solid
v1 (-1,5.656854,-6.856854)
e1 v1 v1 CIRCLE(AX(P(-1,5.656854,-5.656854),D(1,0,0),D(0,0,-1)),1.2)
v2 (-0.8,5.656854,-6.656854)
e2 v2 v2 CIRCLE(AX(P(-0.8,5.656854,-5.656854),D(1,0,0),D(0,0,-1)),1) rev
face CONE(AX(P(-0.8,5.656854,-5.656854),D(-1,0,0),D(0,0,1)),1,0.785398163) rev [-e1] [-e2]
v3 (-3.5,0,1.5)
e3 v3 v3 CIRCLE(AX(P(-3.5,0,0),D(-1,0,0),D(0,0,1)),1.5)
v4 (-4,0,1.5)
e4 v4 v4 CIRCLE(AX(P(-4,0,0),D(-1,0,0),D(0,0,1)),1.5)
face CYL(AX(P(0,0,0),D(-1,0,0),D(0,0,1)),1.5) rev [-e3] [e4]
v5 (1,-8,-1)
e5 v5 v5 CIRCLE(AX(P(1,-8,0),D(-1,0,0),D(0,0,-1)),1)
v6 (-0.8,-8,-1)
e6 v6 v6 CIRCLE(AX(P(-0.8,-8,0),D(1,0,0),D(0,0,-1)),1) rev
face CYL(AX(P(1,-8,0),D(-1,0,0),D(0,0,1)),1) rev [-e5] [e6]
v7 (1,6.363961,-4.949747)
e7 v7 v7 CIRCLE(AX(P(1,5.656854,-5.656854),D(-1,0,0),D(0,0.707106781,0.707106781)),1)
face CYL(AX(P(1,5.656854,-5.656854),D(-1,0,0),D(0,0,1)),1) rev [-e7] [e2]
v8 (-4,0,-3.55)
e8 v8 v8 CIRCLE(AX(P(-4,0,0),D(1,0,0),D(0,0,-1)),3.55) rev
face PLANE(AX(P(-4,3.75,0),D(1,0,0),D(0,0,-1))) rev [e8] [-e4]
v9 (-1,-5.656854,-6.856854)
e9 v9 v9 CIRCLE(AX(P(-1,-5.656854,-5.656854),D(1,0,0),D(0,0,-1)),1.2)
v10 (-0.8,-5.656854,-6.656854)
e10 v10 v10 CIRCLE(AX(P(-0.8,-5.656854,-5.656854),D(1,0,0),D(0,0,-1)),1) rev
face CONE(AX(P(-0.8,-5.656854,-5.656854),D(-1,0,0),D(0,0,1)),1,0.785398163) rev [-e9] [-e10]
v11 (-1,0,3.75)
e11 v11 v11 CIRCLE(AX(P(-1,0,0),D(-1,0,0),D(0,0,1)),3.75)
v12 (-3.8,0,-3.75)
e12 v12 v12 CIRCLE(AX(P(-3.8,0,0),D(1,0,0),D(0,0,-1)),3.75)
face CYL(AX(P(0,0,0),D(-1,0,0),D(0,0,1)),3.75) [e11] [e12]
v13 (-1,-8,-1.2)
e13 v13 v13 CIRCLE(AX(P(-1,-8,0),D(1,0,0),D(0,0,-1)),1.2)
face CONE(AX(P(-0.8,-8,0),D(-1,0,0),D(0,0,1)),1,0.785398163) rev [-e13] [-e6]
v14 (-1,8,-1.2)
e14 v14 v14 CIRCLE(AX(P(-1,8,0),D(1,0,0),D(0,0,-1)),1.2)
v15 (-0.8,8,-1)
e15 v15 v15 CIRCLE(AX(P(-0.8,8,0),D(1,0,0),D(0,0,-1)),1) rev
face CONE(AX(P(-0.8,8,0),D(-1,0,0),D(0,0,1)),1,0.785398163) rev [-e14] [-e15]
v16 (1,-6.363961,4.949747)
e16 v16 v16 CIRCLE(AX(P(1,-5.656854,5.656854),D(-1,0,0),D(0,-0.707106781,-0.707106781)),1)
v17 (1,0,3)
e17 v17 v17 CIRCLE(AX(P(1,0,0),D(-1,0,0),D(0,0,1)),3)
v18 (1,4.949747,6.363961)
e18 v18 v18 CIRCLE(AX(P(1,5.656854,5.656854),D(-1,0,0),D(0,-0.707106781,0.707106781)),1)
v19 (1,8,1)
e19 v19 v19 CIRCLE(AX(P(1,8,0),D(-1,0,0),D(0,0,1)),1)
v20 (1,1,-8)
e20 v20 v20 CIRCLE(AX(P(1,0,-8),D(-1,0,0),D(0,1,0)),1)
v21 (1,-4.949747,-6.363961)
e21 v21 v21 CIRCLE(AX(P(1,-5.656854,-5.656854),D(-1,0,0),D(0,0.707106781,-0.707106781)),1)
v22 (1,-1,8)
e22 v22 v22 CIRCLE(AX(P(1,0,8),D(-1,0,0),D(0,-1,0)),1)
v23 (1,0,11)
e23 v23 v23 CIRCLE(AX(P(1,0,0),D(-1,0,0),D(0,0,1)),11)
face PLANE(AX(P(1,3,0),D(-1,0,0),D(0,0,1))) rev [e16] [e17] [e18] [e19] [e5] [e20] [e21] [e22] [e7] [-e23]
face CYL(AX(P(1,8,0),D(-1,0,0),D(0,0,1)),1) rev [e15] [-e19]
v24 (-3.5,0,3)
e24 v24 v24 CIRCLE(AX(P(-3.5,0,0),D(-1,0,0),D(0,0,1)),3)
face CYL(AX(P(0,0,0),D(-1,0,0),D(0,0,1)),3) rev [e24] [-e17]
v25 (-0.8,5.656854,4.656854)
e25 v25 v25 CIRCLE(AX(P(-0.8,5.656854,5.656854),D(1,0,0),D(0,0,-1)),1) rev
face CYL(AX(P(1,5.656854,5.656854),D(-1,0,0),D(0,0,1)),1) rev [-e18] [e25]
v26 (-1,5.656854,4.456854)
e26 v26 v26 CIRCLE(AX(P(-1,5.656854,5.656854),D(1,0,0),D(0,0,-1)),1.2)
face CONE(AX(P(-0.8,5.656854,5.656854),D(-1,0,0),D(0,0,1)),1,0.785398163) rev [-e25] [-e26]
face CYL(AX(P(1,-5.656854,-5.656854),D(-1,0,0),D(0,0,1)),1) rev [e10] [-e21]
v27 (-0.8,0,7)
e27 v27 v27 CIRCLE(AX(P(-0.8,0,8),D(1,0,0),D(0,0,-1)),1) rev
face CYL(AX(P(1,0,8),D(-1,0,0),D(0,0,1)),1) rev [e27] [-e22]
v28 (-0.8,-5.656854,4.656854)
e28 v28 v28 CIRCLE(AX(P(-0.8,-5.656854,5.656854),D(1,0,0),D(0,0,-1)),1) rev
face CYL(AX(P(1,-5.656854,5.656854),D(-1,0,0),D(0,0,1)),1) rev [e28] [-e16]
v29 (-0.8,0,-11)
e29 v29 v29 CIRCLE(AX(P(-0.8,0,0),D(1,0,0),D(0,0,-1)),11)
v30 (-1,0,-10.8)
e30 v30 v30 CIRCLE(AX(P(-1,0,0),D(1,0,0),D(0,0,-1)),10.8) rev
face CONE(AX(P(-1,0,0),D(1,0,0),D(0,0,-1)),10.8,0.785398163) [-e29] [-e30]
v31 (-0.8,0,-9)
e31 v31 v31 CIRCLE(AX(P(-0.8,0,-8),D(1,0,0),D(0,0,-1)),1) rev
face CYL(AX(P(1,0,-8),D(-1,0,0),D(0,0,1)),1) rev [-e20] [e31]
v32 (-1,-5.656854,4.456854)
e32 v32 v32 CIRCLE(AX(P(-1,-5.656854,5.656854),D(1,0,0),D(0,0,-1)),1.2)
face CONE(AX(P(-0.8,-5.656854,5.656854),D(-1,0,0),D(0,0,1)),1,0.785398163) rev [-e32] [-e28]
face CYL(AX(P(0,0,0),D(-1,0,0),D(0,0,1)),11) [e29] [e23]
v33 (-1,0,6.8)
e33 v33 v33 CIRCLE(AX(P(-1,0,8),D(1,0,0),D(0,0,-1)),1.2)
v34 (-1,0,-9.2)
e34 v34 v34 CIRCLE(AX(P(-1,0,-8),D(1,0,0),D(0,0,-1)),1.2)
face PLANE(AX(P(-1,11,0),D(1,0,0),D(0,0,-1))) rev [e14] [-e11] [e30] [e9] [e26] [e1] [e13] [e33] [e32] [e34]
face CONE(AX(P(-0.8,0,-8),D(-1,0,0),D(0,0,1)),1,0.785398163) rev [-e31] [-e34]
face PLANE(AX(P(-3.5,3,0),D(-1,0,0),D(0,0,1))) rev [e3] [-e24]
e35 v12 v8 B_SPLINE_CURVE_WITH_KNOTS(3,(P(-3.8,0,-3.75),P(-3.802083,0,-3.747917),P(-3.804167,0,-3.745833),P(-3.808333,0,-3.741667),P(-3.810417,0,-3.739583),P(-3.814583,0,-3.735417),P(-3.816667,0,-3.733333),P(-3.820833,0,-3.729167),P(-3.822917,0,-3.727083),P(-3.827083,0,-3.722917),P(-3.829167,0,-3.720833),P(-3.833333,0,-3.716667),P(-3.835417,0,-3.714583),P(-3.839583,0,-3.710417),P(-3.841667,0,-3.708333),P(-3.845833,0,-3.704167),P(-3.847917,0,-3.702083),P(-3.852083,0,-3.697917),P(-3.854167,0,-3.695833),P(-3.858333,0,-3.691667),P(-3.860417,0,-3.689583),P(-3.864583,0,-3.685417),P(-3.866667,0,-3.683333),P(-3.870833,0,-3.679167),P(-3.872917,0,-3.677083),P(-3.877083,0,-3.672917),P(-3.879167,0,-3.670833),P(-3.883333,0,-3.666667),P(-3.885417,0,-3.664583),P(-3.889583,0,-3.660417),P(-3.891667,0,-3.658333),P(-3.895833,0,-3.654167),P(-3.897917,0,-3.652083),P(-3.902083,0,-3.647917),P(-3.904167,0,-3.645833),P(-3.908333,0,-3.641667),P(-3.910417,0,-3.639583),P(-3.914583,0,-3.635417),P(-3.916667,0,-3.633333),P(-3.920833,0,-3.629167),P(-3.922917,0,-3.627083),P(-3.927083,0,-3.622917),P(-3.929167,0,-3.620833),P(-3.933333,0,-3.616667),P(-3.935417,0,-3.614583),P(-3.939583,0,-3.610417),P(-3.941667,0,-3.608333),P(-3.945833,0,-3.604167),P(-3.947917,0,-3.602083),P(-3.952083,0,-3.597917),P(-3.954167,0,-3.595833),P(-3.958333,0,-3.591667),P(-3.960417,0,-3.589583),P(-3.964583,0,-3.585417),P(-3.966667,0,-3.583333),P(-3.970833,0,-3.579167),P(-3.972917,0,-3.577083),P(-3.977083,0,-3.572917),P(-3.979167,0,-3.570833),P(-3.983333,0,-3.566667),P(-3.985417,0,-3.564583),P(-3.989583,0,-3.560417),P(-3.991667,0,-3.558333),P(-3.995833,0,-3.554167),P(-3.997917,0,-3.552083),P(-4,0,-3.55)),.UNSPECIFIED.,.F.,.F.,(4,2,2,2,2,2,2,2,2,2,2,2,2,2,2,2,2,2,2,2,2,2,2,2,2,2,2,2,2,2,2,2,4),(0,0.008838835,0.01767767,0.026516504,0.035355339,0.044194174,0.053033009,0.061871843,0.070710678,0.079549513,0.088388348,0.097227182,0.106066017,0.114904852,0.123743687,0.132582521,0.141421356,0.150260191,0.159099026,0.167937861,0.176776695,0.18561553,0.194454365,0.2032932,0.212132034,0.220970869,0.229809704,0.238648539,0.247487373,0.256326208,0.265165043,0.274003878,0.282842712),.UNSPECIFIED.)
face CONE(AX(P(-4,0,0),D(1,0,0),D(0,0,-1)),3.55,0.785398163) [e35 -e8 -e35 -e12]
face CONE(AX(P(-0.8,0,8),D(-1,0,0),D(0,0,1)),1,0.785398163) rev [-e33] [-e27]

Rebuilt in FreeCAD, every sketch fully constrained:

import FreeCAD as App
import Part
import Sketcher
from FreeCAD import Vector
Q = App.Units.Quantity


def edges_at(feature, points):
    """Names of the edges that pass closest to the given points."""
    edges = feature.Shape.Edges
    near = lambda p: min(range(len(edges)), key=lambda i: edges[i].distToShape(Part.Vertex(*p))[0])
    return sorted({f"Edge{near(p) + 1}" for p in points})


def add_polygon(sketch, points):
    """Adds a closed chain of lines whose ends are joined by coincident constraints."""
    first, n = sketch.GeometryCount, len(points)
    for a, b in zip(points, points[1:] + points[:1]):
        sketch.addGeometry(Part.LineSegment(App.Vector(*a, 0), App.Vector(*b, 0)), False)
    for i in range(n):
        sketch.addConstraint(Sketcher.Constraint("Coincident", first + i, 2, first + (i + 1) % n, 1))

doc = App.newDocument("Part")
body = doc.addObject("PartDesign::Body", "Body")

# Sketch on XY plane
sketch1 = doc.addObject("Sketcher::SketchObject", "Sketch")
body.addObject(sketch1)
sketch1.AttachmentSupport = (doc.XY_Plane, [""])
sketch1.MapMode = "FlatFace"
add_polygon(sketch1, [(1, 11), (-1, 11), (-1, 3.8), (-4, 3.8), (-4, 1.5), (-3.5, 1.5), (-3.5, 3), (1, 3)])  # lines 0-7
sketch1.addConstraint(Sketcher.Constraint("Horizontal", 0))
sketch1.addConstraint(Sketcher.Constraint("Vertical", 1))
sketch1.addConstraint(Sketcher.Constraint("Horizontal", 2))
sketch1.addConstraint(Sketcher.Constraint("Vertical", 3))
sketch1.addConstraint(Sketcher.Constraint("Horizontal", 4))
sketch1.addConstraint(Sketcher.Constraint("Vertical", 5))
sketch1.addConstraint(Sketcher.Constraint("Horizontal", 6))
sketch1.addConstraint(Sketcher.Constraint("Vertical", 7))
sketch1.addConstraint(Sketcher.Constraint("DistanceX", 0, 2, 0, 1, Q("2 mm")))
sketch1.addConstraint(Sketcher.Constraint("DistanceX", 2, 2, 2, 1, Q("3 mm")))
sketch1.addConstraint(Sketcher.Constraint("DistanceY", 7, 1, 7, 2, Q("8 mm")))
sketch1.addConstraint(Sketcher.Constraint("DistanceX", 4, 1, 4, 2, Q("0.5 mm")))
sketch1.addConstraint(Sketcher.Constraint("DistanceY", 5, 1, 5, 2, Q("1.5 mm")))
sketch1.addConstraint(Sketcher.Constraint("DistanceX", 0, 2, -1, 1, Q("1 mm")))
sketch1.addConstraint(Sketcher.Constraint("DistanceY", -1, 1, 0, 2, Q("11 mm")))
sketch1.addConstraint(Sketcher.Constraint("DistanceY", 1, 2, 1, 1, Q("7.25 mm")))
revolution = doc.addObject("PartDesign::Revolution", "Revolution")
body.addObject(revolution)
revolution.Profile = sketch1
revolution.ReferenceAxis = (sketch1, ["H_Axis"])
revolution.Angle = 360

# Sketch on YZ plane
sketch2 = doc.addObject("Sketcher::SketchObject", "Sketch001")
body.addObject(sketch2)
sketch2.AttachmentSupport = (doc.YZ_Plane, [""])
sketch2.MapMode = "FlatFace"
sketch2.AttachmentOffset = App.Placement(Vector(0, 0, -1), App.Rotation())
sketch2.addGeometry(Part.Circle(Vector(8, 0, 0), Vector(0, 0, 1), 1), False)
sketch2.addConstraint(Sketcher.Constraint("PointOnObject", 0, 3, -1))
sketch2.addConstraint(Sketcher.Constraint("Diameter", 0, Q("2 mm")))
sketch2.addConstraint(Sketcher.Constraint("DistanceX", -1, 1, 0, 3, Q("8 mm")))
pocket1 = doc.addObject("PartDesign::Pocket", "Pocket")
body.addObject(pocket1)
pocket1.Profile = sketch2
pocket1.Type = "ThroughAll"
pocket1.Reversed = True
doc.recompute()

polarpattern = doc.addObject("PartDesign::PolarPattern", "PolarPattern")
body.addObject(polarpattern)
polarpattern.Originals = [pocket1]
polarpattern.Axis = (doc.X_Axis, [""])
polarpattern.Angle = 360
polarpattern.Occurrences = 8
body.Tip = polarpattern
doc.recompute()

chamfer = doc.addObject("PartDesign::Chamfer", "Chamfer")
body.addObject(chamfer)
chamfer.Base = (polarpattern, edges_at(polarpattern, [
    (-1, 8, -1),
    (-1, 4.95, -6.364),
    (-1, -1, -8),
    (-1, -6.364, -4.95),
    (-1, -8, 1),
    (-1, -4.95, 6.364),
    (-1, 1, 8),
    (-1, 6.364, 4.95),
    (-4, 0, -3.75),
    (-1, 0, -11),
]))
chamfer.Size = 0.2

doc.recompute()
